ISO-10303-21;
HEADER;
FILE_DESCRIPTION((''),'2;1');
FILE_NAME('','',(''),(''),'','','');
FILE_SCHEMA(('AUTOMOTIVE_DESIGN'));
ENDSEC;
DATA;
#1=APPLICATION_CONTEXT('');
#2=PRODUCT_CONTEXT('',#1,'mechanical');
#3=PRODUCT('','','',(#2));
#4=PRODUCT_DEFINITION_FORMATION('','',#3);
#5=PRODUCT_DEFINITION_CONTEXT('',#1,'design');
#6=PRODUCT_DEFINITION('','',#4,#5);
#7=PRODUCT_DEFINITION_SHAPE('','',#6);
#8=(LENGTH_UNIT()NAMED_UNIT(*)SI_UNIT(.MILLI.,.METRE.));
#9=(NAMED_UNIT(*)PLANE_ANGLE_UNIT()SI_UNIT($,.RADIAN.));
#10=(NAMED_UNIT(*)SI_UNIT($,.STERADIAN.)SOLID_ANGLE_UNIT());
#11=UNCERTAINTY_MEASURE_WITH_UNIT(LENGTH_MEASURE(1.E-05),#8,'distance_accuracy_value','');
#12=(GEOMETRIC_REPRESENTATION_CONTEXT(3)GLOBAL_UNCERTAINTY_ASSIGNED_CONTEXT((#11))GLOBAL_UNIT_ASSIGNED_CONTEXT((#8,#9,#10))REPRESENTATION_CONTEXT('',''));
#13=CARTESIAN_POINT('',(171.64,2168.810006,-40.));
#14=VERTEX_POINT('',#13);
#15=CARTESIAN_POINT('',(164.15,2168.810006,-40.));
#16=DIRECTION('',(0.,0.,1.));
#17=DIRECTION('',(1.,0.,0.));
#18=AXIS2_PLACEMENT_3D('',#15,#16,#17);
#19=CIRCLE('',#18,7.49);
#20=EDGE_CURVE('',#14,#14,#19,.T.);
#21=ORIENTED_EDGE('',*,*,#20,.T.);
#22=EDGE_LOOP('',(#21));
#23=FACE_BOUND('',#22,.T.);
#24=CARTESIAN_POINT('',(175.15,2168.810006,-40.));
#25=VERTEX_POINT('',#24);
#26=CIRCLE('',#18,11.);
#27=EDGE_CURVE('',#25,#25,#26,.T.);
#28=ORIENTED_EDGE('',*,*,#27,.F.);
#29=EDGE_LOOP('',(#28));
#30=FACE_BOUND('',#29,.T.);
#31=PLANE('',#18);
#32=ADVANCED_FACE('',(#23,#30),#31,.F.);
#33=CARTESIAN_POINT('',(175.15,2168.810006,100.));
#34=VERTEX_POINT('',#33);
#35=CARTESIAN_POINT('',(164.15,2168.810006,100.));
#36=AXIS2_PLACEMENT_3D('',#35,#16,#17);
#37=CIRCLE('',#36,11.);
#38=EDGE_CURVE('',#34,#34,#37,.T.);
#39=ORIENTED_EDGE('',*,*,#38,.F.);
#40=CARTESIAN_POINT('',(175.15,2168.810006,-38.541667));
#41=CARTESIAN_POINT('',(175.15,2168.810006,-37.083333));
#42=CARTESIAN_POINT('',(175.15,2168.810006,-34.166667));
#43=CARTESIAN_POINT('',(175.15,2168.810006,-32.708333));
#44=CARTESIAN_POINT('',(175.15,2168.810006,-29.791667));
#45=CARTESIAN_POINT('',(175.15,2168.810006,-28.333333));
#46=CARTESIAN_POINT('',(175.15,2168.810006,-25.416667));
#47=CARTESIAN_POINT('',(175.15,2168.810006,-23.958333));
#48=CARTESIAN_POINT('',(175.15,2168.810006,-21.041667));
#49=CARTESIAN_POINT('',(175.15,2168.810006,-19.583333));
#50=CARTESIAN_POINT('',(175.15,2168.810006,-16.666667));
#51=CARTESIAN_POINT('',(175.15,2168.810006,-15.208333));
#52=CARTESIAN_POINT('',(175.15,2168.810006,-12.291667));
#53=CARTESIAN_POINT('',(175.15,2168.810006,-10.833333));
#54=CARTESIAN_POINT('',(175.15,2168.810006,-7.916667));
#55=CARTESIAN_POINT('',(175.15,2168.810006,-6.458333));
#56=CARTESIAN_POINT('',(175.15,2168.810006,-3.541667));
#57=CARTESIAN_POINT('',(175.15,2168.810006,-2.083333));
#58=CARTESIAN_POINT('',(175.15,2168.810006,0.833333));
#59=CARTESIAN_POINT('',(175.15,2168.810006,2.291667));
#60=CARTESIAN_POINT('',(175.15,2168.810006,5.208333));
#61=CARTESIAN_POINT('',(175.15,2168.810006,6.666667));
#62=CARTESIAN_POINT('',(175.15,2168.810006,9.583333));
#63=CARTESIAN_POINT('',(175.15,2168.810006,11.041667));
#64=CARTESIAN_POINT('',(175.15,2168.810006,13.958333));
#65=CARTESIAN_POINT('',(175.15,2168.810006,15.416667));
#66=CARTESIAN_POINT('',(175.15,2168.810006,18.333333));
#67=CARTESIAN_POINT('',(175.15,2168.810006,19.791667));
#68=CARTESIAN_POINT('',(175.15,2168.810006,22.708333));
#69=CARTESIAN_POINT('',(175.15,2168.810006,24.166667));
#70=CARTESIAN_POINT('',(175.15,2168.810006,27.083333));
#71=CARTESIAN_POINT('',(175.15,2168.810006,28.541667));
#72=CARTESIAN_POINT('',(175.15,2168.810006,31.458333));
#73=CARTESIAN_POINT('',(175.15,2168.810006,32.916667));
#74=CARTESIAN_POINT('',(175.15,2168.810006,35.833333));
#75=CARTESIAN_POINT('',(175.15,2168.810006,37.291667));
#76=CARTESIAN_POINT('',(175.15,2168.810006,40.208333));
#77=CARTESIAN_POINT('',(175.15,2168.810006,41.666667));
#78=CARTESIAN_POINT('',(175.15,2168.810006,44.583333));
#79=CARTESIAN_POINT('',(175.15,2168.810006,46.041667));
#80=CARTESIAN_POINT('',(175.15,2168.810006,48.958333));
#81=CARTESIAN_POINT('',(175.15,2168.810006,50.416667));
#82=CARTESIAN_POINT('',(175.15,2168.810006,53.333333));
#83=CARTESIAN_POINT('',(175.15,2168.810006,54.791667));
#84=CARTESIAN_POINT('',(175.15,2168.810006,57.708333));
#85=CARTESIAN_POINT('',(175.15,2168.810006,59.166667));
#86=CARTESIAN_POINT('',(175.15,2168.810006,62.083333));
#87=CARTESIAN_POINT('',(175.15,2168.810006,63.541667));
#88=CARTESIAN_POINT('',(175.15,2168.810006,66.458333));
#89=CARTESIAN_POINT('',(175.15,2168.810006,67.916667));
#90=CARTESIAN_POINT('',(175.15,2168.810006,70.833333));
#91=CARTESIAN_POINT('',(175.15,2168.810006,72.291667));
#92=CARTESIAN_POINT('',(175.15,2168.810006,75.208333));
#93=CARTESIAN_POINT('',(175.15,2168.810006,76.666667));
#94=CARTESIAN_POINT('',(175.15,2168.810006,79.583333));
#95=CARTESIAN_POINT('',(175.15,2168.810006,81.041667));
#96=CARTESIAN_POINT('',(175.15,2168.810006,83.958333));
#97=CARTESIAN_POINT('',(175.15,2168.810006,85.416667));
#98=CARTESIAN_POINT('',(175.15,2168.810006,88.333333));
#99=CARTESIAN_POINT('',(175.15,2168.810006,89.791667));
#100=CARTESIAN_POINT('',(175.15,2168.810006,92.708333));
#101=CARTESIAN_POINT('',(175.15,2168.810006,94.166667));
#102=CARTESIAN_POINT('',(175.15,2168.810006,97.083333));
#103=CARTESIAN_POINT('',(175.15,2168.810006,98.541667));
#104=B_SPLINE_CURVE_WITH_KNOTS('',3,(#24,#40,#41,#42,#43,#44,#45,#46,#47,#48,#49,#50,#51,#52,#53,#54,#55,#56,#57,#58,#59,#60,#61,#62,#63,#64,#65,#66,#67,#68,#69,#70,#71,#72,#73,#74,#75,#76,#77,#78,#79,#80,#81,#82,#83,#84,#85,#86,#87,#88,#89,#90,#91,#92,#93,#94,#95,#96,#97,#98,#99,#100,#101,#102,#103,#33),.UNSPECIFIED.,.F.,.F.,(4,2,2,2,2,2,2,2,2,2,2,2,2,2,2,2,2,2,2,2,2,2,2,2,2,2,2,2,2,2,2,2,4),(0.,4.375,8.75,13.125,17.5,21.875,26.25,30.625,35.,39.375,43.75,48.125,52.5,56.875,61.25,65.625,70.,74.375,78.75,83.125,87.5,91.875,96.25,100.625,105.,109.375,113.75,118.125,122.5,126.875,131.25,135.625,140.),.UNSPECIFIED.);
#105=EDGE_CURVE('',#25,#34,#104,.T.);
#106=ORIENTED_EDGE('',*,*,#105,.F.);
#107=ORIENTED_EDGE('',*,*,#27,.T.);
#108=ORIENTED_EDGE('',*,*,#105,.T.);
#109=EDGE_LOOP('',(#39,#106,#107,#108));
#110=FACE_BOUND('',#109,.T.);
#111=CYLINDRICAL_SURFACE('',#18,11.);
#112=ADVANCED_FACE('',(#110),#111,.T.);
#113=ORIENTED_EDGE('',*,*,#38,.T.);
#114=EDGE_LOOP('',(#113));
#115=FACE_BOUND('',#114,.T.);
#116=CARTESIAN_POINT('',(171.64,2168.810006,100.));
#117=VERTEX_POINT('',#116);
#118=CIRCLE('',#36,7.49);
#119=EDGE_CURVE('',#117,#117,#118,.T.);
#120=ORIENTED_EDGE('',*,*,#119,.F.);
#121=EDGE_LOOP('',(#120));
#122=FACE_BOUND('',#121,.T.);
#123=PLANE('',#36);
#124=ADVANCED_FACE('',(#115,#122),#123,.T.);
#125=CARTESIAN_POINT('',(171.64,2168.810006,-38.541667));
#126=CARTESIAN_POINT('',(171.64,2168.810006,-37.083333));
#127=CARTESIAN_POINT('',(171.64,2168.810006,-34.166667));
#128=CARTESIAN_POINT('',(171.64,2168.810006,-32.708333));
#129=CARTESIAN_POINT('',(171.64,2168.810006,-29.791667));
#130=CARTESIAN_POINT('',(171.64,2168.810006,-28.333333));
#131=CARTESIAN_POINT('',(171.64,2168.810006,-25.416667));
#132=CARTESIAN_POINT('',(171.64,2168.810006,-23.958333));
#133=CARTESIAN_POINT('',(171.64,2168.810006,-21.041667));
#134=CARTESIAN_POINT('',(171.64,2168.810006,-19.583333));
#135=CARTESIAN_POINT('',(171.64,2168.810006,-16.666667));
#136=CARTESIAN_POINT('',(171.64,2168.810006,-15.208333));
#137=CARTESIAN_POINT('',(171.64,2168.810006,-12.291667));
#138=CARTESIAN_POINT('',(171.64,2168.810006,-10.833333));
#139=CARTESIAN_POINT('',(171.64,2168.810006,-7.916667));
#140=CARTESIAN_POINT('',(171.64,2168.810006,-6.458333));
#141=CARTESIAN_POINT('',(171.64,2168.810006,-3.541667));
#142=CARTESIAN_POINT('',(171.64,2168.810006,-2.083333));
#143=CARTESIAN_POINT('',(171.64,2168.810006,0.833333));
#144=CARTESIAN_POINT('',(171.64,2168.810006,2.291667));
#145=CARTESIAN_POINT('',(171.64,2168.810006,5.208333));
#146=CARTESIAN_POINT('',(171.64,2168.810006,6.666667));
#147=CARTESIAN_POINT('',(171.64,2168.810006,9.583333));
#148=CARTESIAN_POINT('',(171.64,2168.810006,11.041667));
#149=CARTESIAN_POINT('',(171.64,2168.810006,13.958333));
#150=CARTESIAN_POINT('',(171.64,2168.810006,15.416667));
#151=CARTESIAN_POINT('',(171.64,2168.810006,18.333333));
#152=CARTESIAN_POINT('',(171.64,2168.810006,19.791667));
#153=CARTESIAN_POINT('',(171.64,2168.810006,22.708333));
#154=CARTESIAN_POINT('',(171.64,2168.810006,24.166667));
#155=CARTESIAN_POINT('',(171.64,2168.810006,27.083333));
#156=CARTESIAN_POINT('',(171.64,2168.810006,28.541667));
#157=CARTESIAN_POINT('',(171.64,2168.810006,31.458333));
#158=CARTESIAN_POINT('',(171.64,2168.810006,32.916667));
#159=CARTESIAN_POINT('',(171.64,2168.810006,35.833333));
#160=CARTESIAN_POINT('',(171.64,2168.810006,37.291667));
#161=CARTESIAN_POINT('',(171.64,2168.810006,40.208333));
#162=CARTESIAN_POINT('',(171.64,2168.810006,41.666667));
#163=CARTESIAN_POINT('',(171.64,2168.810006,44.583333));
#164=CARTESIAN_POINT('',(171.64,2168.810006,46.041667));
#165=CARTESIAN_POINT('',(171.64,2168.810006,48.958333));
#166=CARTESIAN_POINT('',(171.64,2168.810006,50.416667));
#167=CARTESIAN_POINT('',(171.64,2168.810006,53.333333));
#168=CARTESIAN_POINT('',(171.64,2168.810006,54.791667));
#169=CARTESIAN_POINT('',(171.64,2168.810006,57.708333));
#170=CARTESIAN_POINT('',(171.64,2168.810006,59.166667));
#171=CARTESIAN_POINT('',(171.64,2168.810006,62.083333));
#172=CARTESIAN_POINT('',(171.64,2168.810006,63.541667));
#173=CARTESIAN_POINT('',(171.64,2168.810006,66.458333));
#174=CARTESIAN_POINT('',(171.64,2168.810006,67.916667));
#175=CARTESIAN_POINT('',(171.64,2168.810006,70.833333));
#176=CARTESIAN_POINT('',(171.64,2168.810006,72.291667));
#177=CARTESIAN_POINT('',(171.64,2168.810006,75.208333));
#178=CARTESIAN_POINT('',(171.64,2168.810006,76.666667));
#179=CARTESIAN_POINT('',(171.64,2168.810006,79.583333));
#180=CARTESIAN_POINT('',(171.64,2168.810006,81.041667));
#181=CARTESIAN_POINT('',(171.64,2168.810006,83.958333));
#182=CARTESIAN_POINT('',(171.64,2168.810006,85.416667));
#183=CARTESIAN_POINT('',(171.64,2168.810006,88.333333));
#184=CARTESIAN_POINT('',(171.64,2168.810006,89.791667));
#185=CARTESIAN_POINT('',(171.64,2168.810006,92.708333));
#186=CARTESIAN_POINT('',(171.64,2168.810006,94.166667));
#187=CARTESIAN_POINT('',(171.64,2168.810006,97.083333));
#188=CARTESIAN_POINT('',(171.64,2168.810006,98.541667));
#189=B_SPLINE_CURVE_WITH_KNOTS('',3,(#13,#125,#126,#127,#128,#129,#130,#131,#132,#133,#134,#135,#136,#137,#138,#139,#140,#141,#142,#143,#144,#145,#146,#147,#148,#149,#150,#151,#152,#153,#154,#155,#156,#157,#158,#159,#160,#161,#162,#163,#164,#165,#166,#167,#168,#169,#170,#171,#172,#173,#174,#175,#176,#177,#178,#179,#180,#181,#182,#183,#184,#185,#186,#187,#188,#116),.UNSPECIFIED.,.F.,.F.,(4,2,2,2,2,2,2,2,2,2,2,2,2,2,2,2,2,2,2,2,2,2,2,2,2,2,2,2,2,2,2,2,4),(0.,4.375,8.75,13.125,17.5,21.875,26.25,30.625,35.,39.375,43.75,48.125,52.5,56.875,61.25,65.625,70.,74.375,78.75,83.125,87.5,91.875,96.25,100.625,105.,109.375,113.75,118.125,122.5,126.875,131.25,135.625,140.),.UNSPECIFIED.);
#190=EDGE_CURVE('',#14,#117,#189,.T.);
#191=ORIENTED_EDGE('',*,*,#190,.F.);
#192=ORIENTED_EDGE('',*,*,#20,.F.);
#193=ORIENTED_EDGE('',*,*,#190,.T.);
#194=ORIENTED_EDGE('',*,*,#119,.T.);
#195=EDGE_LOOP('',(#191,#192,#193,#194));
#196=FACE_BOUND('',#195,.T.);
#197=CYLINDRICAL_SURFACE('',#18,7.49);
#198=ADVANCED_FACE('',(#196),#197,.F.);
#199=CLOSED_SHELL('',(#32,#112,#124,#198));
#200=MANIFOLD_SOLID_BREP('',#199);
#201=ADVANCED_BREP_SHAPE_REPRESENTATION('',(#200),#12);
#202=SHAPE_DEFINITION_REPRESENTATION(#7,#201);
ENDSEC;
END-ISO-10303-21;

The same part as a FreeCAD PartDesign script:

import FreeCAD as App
import Part
import Sketcher

V = App.Vector
Q = App.Units.Quantity

doc = App.newDocument("Part")
params = doc.addObject("Spreadsheet::Sheet", "Params")
for row, (alias, value) in enumerate([
    ("sketch1_diameter", "22 mm"),
    ("sketch1_diameter2", "14.98 mm"),
    ("pad1_length", "100 mm"),
    ("pad1_length2", "40 mm"),
], start=1):
    params.set(f"A{row}", alias)
    params.set(f"B{row}", "=" + value)
    params.setAlias(f"B{row}", alias)

body = doc.addObject("PartDesign::Body", "Body")

# Sketch on XY plane
sketch1 = doc.addObject("Sketcher::SketchObject", "Sketch")
body.addObject(sketch1)
sketch1.AttachmentSupport = (doc.XY_Plane, [""])
sketch1.MapMode = "FlatFace"
sketch1.addGeometry(Part.Circle(V(164, 2169, 0), V(0, 0, 1), 11), False)
sketch1.addGeometry(Part.Circle(V(164, 2169, 0), V(0, 0, 1), 7), False)
sketch1.addConstraint(Sketcher.Constraint("Coincident", 1, 3, 0, 3))
sketch1.addConstraint(Sketcher.Constraint("Diameter", 0, Q("22 mm")))
sketch1.addConstraint(Sketcher.Constraint("Diameter", 1, Q("14.98 mm")))
sketch1.addConstraint(Sketcher.Constraint("DistanceX", -1, 1, 0, 3, Q("164.15 mm")))
sketch1.addConstraint(Sketcher.Constraint("DistanceY", -1, 1, 0, 3, Q("2168.810006 mm")))
sketch1.setExpression("Constraints[1]", "Params.sketch1_diameter")
sketch1.setExpression("Constraints[2]", "Params.sketch1_diameter2")
pad1 = doc.addObject("PartDesign::Pad", "Pad")
body.addObject(pad1)
pad1.Profile = sketch1
pad1.Type = "TwoLengths"
pad1.setExpression("Length", "Params.pad1_length")
pad1.setExpression("Length2", "Params.pad1_length2")

doc.recompute()
